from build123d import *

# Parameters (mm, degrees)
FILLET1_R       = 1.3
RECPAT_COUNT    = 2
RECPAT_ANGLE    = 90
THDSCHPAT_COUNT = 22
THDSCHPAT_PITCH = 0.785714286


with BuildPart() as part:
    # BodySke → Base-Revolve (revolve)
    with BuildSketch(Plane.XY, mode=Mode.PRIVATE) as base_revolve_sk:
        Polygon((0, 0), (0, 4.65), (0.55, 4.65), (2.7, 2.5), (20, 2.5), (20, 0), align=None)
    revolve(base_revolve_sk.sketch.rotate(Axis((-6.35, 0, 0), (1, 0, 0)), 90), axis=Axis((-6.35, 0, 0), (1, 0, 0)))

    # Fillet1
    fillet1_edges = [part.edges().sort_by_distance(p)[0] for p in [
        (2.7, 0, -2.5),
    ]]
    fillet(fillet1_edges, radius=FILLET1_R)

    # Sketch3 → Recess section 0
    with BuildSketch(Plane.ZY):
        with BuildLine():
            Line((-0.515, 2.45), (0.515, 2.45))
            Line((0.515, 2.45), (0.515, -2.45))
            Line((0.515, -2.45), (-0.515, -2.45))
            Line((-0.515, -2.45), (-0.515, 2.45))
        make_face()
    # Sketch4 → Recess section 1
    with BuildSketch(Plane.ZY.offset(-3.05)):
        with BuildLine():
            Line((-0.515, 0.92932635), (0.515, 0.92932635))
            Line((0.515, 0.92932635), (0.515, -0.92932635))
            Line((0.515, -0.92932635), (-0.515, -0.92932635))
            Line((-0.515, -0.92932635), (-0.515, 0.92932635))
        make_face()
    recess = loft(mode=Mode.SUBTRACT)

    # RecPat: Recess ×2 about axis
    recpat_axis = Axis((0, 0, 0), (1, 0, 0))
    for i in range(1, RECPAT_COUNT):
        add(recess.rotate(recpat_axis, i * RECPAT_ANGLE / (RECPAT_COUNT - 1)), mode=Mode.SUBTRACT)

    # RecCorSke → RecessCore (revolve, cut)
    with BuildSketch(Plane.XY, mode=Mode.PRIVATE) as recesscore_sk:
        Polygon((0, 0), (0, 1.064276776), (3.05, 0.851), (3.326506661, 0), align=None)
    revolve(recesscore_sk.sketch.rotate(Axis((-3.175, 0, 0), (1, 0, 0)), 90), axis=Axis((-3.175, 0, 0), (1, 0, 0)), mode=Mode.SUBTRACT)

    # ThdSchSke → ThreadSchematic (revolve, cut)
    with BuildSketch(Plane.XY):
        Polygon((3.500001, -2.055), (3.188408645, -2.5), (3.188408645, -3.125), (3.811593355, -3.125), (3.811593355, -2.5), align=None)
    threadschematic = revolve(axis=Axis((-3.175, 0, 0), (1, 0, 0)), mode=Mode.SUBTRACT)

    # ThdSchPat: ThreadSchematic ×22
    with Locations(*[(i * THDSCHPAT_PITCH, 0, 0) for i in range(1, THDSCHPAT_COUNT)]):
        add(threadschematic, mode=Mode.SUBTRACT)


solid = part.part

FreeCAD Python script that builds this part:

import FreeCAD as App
import Part
import Sketcher

V = App.Vector
Q = App.Units.Quantity


def edges_at(feature, points):
    """Names of the edges that pass closest to the given points."""
    edges = feature.Shape.Edges
    near = lambda p: min(range(len(edges)), key=lambda i: edges[i].distToShape(Part.Vertex(*p))[0])
    return sorted({f"Edge{near(p) + 1}" for p in points})


def add_polygon(sketch, points):
    """Adds a closed chain of lines whose ends are joined by coincident constraints."""
    first, n = sketch.GeometryCount, len(points)
    for a, b in zip(points, points[1:] + points[:1]):
        sketch.addGeometry(Part.LineSegment(App.Vector(*a, 0), App.Vector(*b, 0)), False)
    for i in range(n):
        sketch.addConstraint(Sketcher.Constraint("Coincident", first + i, 2, first + (i + 1) % n, 1))

doc = App.newDocument("Part")
body = doc.addObject("PartDesign::Body", "Body")

sketch1 = body.newObject("Sketcher::SketchObject", "Sketch")
sketch1.AttachmentSupport = (doc.getObject("XY_Plane"), [""])
sketch1.MapMode = "FlatFace"
add_polygon(sketch1, [(0, 4.7), (0, 0), (20, 0), (20, 2.5), (2.7, 2.5), (0.6, 4.7)])
sketch1.addConstraint([
    Sketcher.Constraint("Vertical", 0),
    Sketcher.Constraint("Horizontal", 1),
    Sketcher.Constraint("Vertical", 2),
    Sketcher.Constraint("Horizontal", 3),
    Sketcher.Constraint("Horizontal", 5),
    Sketcher.Constraint("Coincident", 0, 2, -1, 1),
    Sketcher.Constraint("DistanceX", 1, 1, 1, 2, 20.0),
    Sketcher.Constraint("Angle", 4, Q("135 deg")),
    Sketcher.Constraint("DistanceX", 3, 2, 3, 1, 17.3),
    Sketcher.Constraint("DistanceY", 2, 1, 2, 2, 2.5),
    Sketcher.Constraint("DistanceX", 5, 2, 5, 1, 0.55),
])
revolution = body.newObject("PartDesign::Revolution", "Revolution")
revolution.Profile = sketch1
revolution.ReferenceAxis = (sketch1, ["H_Axis"])
revolution.Angle = 360
doc.recompute()

fillet = body.newObject("PartDesign::Fillet", "Fillet")
fillet.Base = (revolution, edges_at(revolution, [(2.7, 0, -2.5)]))
fillet.Radius = 1.3

sketch2 = body.newObject("Sketcher::SketchObject", "Sketch001")
sketch2.AttachmentSupport = (doc.getObject("YZ_Plane"), [""])
sketch2.MapMode = "FlatFace"
add_polygon(sketch2, [(2.5, 0.5), (2.5, -0.5), (-2.5, -0.5), (-2.5, 0.5)])
sketch2.addConstraint([
    Sketcher.Constraint("Vertical", 0),
    Sketcher.Constraint("Horizontal", 1),
    Sketcher.Constraint("Vertical", 2),
    Sketcher.Constraint("Horizontal", 3),
    Sketcher.Constraint("Symmetric", 0, 2, 2, 2, -1, 1),
    Sketcher.Constraint("DistanceX", 1, 2, 1, 1, 4.9),
    Sketcher.Constraint("DistanceY", 0, 2, 0, 1, 1.03),
])

sketch3 = body.newObject("Sketcher::SketchObject", "Sketch002")
sketch3.AttachmentSupport = (doc.getObject("YZ_Plane"), [""])
sketch3.MapMode = "FlatFace"
sketch3.AttachmentOffset = App.Placement(V(0, 0, 3.05), App.Rotation())
add_polygon(sketch3, [(0.9, 0.5), (0.9, -0.5), (-0.9, -0.5), (-0.9, 0.5)])
sketch3.addConstraint([
    Sketcher.Constraint("Vertical", 0),
    Sketcher.Constraint("Horizontal", 1),
    Sketcher.Constraint("Vertical", 2),
    Sketcher.Constraint("Horizontal", 3),
    Sketcher.Constraint("Symmetric", 0, 2, 2, 2, -1, 1),
    Sketcher.Constraint("DistanceY", 0, 2, 0, 1, 1.03),
    Sketcher.Constraint("DistanceX", 1, 2, 1, 1, 1.858653),
])

subtractiveloft = body.newObject("PartDesign::SubtractiveLoft", "SubtractiveLoft")
subtractiveloft.Profile = sketch2
subtractiveloft.Sections = [sketch3]
doc.recompute()

polarpattern = body.newObject("PartDesign::PolarPattern", "PolarPattern")
polarpattern.Originals = [subtractiveloft]
polarpattern.Axis = (doc.getObject("X_Axis"), [""])
polarpattern.Angle = 90
polarpattern.Occurrences = 2
body.Tip = polarpattern

sketch4 = body.newObject("Sketcher::SketchObject", "Sketch003")
sketch4.AttachmentSupport = (doc.getObject("XY_Plane"), [""])
sketch4.MapMode = "FlatFace"
add_polygon(sketch4, [(0, 1.1), (0, 0), (3.3, 0), (3, 0.9)])
sketch4.addConstraint([
    Sketcher.Constraint("Vertical", 0),
    Sketcher.Constraint("Horizontal", 1),
    Sketcher.Constraint("Coincident", 0, 2, -1, 1),
    Sketcher.Constraint("Angle", 2, Q("108 deg")),
    Sketcher.Constraint("Angle", 3, Q("176 deg")),
    Sketcher.Constraint("DistanceX", -1, 1, 2, 2, 3.05),
    Sketcher.Constraint("DistanceY", -1, 1, 2, 2, 0.851),
])
groove = body.newObject("PartDesign::Groove", "Groove")
groove.Profile = sketch4
groove.ReferenceAxis = (sketch4, ["H_Axis"])
groove.Angle = 360

sketch5 = body.newObject("Sketcher::SketchObject", "Sketch004")
sketch5.AttachmentSupport = (doc.getObject("XY_Plane"), [""])
sketch5.MapMode = "FlatFace"
add_polygon(sketch5, [(3.5, -2.1), (3.2, -2.5), (3.2, -3.1), (3.8, -3.1), (3.8, -2.5)])
sketch5.addConstraint([
    Sketcher.Constraint("Vertical", 1),
    Sketcher.Constraint("Horizontal", 2),
    Sketcher.Constraint("Vertical", 3),
    Sketcher.Constraint("Horizontal", 0, 2, 3, 2),
    Sketcher.Constraint("Equal", 0, 4),
    Sketcher.Constraint("Angle", 0, Q("-125 deg")),
    Sketcher.Constraint("DistanceY", 0, 2, -1, 1, 2.5),
    Sketcher.Constraint("DistanceX", -1, 1, 4, 2, 3.500001),
    Sketcher.Constraint("DistanceY", 1, 2, 1, 1, 0.625),
    Sketcher.Constraint("DistanceY", 1, 2, 4, 2, 1.07),
])
groove2 = body.newObject("PartDesign::Groove", "Groove001")
groove2.Profile = sketch5
groove2.ReferenceAxis = (sketch5, ["H_Axis"])
groove2.Angle = 360
doc.recompute()

linearpattern = body.newObject("PartDesign::LinearPattern", "LinearPattern")
linearpattern.Originals = [groove2]
linearpattern.Direction = (doc.getObject("X_Axis"), [""])
linearpattern.Mode = "offset"
linearpattern.Offset = 0.785714
linearpattern.Occurrences = 22
body.Tip = linearpattern

doc.recompute()
